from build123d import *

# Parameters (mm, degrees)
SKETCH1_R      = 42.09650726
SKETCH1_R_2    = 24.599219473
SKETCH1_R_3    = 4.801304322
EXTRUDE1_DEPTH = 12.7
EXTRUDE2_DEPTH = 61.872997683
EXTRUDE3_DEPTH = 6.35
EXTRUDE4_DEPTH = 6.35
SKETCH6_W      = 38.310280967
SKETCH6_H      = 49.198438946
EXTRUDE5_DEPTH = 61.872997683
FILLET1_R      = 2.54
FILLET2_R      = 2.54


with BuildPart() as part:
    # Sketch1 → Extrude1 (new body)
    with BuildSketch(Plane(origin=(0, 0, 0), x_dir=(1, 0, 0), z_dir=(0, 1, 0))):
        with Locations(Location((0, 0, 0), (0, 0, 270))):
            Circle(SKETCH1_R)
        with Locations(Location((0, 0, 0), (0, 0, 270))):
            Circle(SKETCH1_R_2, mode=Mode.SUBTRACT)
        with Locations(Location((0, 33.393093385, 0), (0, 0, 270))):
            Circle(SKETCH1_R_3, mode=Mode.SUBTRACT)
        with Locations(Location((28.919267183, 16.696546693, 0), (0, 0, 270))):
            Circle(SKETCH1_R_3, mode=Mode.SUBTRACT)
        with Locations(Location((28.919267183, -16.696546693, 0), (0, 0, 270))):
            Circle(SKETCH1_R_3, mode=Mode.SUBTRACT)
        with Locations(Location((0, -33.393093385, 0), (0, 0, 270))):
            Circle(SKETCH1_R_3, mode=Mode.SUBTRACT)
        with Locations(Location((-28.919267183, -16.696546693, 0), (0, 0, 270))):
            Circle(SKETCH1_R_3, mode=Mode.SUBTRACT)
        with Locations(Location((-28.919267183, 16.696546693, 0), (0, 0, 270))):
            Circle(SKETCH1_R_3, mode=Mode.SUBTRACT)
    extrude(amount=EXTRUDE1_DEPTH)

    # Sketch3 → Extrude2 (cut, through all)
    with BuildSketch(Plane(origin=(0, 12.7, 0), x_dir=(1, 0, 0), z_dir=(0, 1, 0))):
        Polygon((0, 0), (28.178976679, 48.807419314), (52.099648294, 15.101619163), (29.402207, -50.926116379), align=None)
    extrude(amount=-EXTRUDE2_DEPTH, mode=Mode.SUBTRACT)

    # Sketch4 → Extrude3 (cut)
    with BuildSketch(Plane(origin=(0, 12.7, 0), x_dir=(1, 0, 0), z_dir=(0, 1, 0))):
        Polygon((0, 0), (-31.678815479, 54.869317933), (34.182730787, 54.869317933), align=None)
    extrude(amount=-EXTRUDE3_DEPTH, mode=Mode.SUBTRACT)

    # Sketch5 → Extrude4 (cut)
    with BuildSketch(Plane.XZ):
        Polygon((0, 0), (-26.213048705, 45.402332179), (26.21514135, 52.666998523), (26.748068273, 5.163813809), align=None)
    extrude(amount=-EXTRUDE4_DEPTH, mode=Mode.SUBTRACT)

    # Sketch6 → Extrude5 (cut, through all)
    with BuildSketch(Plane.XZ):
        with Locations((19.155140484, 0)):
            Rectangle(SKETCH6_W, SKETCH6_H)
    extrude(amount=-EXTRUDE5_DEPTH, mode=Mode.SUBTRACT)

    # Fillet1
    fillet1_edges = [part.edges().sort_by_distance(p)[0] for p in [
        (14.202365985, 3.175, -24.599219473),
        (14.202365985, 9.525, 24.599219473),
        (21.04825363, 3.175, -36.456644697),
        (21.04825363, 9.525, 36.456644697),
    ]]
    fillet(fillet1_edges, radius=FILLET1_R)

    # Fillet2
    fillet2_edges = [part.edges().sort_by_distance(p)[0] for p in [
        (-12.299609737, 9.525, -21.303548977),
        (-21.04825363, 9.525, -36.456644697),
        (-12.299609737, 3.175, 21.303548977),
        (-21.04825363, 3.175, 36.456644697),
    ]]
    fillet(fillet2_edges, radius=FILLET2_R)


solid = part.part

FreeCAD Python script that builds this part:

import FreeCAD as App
import Part
import Sketcher
Q = App.Units.Quantity


def edges_at(feature, points):
    """Names of the edges that pass closest to the given points."""
    edges = feature.Shape.Edges
    near = lambda p: min(range(len(edges)), key=lambda i: edges[i].distToShape(Part.Vertex(*p))[0])
    return sorted({f"Edge{near(p) + 1}" for p in points})


def add_polygon(sketch, points):
    """Adds a closed chain of lines whose ends are joined by coincident constraints."""
    first, n = sketch.GeometryCount, len(points)
    for a, b in zip(points, points[1:] + points[:1]):
        sketch.addGeometry(Part.LineSegment(App.Vector(*a, 0), App.Vector(*b, 0)), False)
    for i in range(n):
        sketch.addConstraint(Sketcher.Constraint("Coincident", first + i, 2, first + (i + 1) % n, 1))

doc = App.newDocument("Part")
params = doc.addObject("Spreadsheet::Sheet", "Params")
for row, (alias, value) in enumerate([
    ("pad1_length", "0.5 in"),
    ("pocket2_length", "0.25 in"),
    ("pocket3_length", "0.25 in"),
    ("fillet_radius", "0.1 in"),
    ("fillet2_radius", "0.1 in"),
], start=1):
    params.set(f"A{row}", alias)
    params.set(f"B{row}", "=" + value)
    params.setAlias(f"B{row}", alias)

body = doc.addObject("PartDesign::Body", "Body")

# Sketch on XZ plane
sketch1 = doc.addObject("Sketcher::SketchObject", "Sketch")
body.addObject(sketch1)
sketch1.AttachmentSupport = (doc.XZ_Plane, [""])
sketch1.MapMode = "FlatFace"
sketch1.addGeometry(Part.Circle(App.Vector(0, 0, 0), App.Vector(0, 0, 1), 42.1), False)
sketch1.addGeometry(Part.Circle(App.Vector(-28.9, -16.7, 0), App.Vector(0, 0, 1), 4.8), False)
sketch1.addGeometry(Part.Circle(App.Vector(0, -33.4, 0), App.Vector(0, 0, 1), 4.8), False)
sketch1.addGeometry(Part.Circle(App.Vector(-28.9, 16.7, 0), App.Vector(0, 0, 1), 4.8), False)
sketch1.addGeometry(Part.Circle(App.Vector(28.9, -16.7, 0), App.Vector(0, 0, 1), 4.8), False)
sketch1.addGeometry(Part.Circle(App.Vector(0, 0, 0), App.Vector(0, 0, 1), 24.6), False)
sketch1.addGeometry(Part.Circle(App.Vector(0, 33.4, 0), App.Vector(0, 0, 1), 4.8), False)
sketch1.addGeometry(Part.Circle(App.Vector(28.9, 16.7, 0), App.Vector(0, 0, 1), 4.8), False)
sketch1.addConstraint(Sketcher.Constraint("Coincident", 0, 3, -1, 1))
sketch1.addConstraint(Sketcher.Constraint("Coincident", 5, 3, -1, 1))
sketch1.addConstraint(Sketcher.Constraint("Equal", 1, 2))
sketch1.addConstraint(Sketcher.Constraint("Equal", 2, 3))
sketch1.addConstraint(Sketcher.Constraint("Equal", 3, 4))
sketch1.addConstraint(Sketcher.Constraint("Equal", 4, 6))
sketch1.addConstraint(Sketcher.Constraint("Equal", 6, 7))
sketch1.addConstraint(Sketcher.Constraint("Symmetric", 3, 3, 4, 3, -1, 1))
sketch1.addConstraint(Sketcher.Constraint("Symmetric", 2, 3, 6, 3, -1, 1))
sketch1.addConstraint(Sketcher.Constraint("Symmetric", 1, 3, 7, 3, -1, 1))
sketch1.addConstraint(Sketcher.Constraint("Symmetric", 1, 3, 4, 3, -2))
sketch1.addConstraint(Sketcher.Constraint("PointOnObject", 2, 3, -2))
sketch1.addConstraint(Sketcher.Constraint("Diameter", 1, Q("9.602609 mm")))
sketch1.addConstraint(Sketcher.Constraint("Diameter", 5, Q("49.198439 mm")))
sketch1.addConstraint(Sketcher.Constraint("Diameter", 0, Q("84.193015 mm")))
sketch1.addConstraint(Sketcher.Constraint("DistanceY", 2, 3, 3, 3, Q("50.08964 mm")))
sketch1.addConstraint(Sketcher.Constraint("DistanceX", 1, 3, -1, 1, Q("28.919267 mm")))
sketch1.addConstraint(Sketcher.Constraint("DistanceY", 1, 3, -1, 1, Q("16.696547 mm")))
pad1 = doc.addObject("PartDesign::Pad", "Pad")
body.addObject(pad1)
pad1.Profile = sketch1
pad1.setExpression("Length", "Params.pad1_length")
pad1.Reversed = True

# Sketch on XZ plane
sketch2 = doc.addObject("Sketcher::SketchObject", "Sketch001")
body.addObject(sketch2)
sketch2.AttachmentSupport = (doc.XZ_Plane, [""])
sketch2.MapMode = "FlatFace"
sketch2.AttachmentOffset = App.Placement(App.Vector(0, 0, -0.5 * 25.4), App.Rotation())
add_polygon(sketch2, [(28, -49), (0, 0), (29, 51), (52, -15)])  # lines 0-3
sketch2.addConstraint(Sketcher.Constraint("Coincident", 0, 2, -1, 1))
sketch2.addConstraint(Sketcher.Constraint("Angle", 0, Q("120 deg")))
sketch2.addConstraint(Sketcher.Constraint("Angle", 1, Q("60 deg")))
sketch2.addConstraint(Sketcher.Constraint("DistanceY", 3, 2, 2, 2, Q("1.327 in")))
sketch2.addConstraint(Sketcher.Constraint("DistanceX", 1, 2, 2, 2, Q("0.8936001 in")))
sketch2.addConstraint(Sketcher.Constraint("DistanceX", -1, 1, 2, 2, Q("52.099648 mm")))
sketch2.addConstraint(Sketcher.Constraint("DistanceY", 2, 2, -1, 1, Q("15.101619 mm")))
pocket1 = doc.addObject("PartDesign::Pocket", "Pocket")
body.addObject(pocket1)
pocket1.Profile = sketch2
pocket1.Type = "ThroughAll"
pocket1.Reversed = True

# Sketch on XZ plane
sketch3 = doc.addObject("Sketcher::SketchObject", "Sketch002")
body.addObject(sketch3)
sketch3.AttachmentSupport = (doc.XZ_Plane, [""])
sketch3.MapMode = "FlatFace"
sketch3.AttachmentOffset = App.Placement(App.Vector(0, 0, -0.5 * 25.4), App.Rotation())
add_polygon(sketch3, [(-32, -55), (0, 0), (34, -55)])  # lines 0-2
sketch3.addConstraint(Sketcher.Constraint("Horizontal", 2))
sketch3.addConstraint(Sketcher.Constraint("Coincident", 0, 2, -1, 1))
sketch3.addConstraint(Sketcher.Constraint("Angle", 0, Q("60 deg")))
sketch3.addConstraint(Sketcher.Constraint("Distance", 0, Q("63.357631 mm")))
sketch3.addConstraint(Sketcher.Constraint("DistanceX", 2, 2, 2, 1, Q("65.861546 mm")))
pocket2 = doc.addObject("PartDesign::Pocket", "Pocket001")
body.addObject(pocket2)
pocket2.Profile = sketch3
pocket2.setExpression("Length", "Params.pocket2_length")
pocket2.Reversed = True

# Sketch on XZ plane
sketch4 = doc.addObject("Sketcher::SketchObject", "Sketch003")
body.addObject(sketch4)
sketch4.AttachmentSupport = (doc.XZ_Plane, [""])
sketch4.MapMode = "FlatFace"
add_polygon(sketch4, [(-26, 45), (0, 0), (27, 5), (26, 53)])  # lines 0-3
sketch4.addConstraint(Sketcher.Constraint("Coincident", 0, 2, -1, 1))
sketch4.addConstraint(Sketcher.Constraint("Angle", 0, Q("-60 deg")))
sketch4.addConstraint(Sketcher.Constraint("DistanceY", -1, 1, 2, 2, Q("52.666999 mm")))
sketch4.addConstraint(Sketcher.Constraint("Distance", 3, Q("52.929108 mm")))
sketch4.addConstraint(Sketcher.Constraint("DistanceX", -1, 1, 1, 2, Q("26.748068 mm")))
sketch4.addConstraint(Sketcher.Constraint("DistanceX", -1, 1, 2, 2, Q("26.215141 mm")))
sketch4.addConstraint(Sketcher.Constraint("DistanceY", 1, 2, 3, 2, Q("40.238518 mm")))
pocket3 = doc.addObject("PartDesign::Pocket", "Pocket002")
body.addObject(pocket3)
pocket3.Profile = sketch4
pocket3.setExpression("Length", "Params.pocket3_length")

# Sketch on XZ plane
sketch5 = doc.addObject("Sketcher::SketchObject", "Sketch004")
body.addObject(sketch5)
sketch5.AttachmentSupport = (doc.XZ_Plane, [""])
sketch5.MapMode = "FlatFace"
add_polygon(sketch5, [(0, 25), (0, -25), (38, -25), (38, 25)])  # lines 0-3
sketch5.addConstraint(Sketcher.Constraint("Vertical", 0))
sketch5.addConstraint(Sketcher.Constraint("Horizontal", 1))
sketch5.addConstraint(Sketcher.Constraint("Vertical", 2))
sketch5.addConstraint(Sketcher.Constraint("Horizontal", 3))
sketch5.addConstraint(Sketcher.Constraint("Symmetric", 0, 2, 3, 2, -1, 1))
sketch5.addConstraint(Sketcher.Constraint("DistanceX", 1, 1, 1, 2, Q("38.310281 mm")))
sketch5.addConstraint(Sketcher.Constraint("DistanceY", 0, 2, 0, 1, Q("49.198439 mm")))
pocket4 = doc.addObject("PartDesign::Pocket", "Pocket003")
body.addObject(pocket4)
pocket4.Profile = sketch5
pocket4.Type = "ThroughAll"
doc.recompute()

fillet = doc.addObject("PartDesign::Fillet", "Fillet")
body.addObject(fillet)
fillet.Base = (pocket4, edges_at(pocket4, [
    (14.202, 3.175, -24.599),
    (14.202, 9.525, 24.599),
    (21.048, 3.175, -36.457),
    (21.048, 9.525, 36.457),
]))
fillet.setExpression("Radius", "Params.fillet_radius")
doc.recompute()

fillet2 = doc.addObject("PartDesign::Fillet", "Fillet001")
body.addObject(fillet2)
fillet2.Base = (fillet, edges_at(fillet, [
    (-12.3, 9.525, -21.304),
    (-21.048, 9.525, -36.457),
    (-12.3, 3.175, 21.304),
    (-21.048, 3.175, 36.457),
]))
fillet2.setExpression("Radius", "Params.fillet2_radius")

doc.recompute()
